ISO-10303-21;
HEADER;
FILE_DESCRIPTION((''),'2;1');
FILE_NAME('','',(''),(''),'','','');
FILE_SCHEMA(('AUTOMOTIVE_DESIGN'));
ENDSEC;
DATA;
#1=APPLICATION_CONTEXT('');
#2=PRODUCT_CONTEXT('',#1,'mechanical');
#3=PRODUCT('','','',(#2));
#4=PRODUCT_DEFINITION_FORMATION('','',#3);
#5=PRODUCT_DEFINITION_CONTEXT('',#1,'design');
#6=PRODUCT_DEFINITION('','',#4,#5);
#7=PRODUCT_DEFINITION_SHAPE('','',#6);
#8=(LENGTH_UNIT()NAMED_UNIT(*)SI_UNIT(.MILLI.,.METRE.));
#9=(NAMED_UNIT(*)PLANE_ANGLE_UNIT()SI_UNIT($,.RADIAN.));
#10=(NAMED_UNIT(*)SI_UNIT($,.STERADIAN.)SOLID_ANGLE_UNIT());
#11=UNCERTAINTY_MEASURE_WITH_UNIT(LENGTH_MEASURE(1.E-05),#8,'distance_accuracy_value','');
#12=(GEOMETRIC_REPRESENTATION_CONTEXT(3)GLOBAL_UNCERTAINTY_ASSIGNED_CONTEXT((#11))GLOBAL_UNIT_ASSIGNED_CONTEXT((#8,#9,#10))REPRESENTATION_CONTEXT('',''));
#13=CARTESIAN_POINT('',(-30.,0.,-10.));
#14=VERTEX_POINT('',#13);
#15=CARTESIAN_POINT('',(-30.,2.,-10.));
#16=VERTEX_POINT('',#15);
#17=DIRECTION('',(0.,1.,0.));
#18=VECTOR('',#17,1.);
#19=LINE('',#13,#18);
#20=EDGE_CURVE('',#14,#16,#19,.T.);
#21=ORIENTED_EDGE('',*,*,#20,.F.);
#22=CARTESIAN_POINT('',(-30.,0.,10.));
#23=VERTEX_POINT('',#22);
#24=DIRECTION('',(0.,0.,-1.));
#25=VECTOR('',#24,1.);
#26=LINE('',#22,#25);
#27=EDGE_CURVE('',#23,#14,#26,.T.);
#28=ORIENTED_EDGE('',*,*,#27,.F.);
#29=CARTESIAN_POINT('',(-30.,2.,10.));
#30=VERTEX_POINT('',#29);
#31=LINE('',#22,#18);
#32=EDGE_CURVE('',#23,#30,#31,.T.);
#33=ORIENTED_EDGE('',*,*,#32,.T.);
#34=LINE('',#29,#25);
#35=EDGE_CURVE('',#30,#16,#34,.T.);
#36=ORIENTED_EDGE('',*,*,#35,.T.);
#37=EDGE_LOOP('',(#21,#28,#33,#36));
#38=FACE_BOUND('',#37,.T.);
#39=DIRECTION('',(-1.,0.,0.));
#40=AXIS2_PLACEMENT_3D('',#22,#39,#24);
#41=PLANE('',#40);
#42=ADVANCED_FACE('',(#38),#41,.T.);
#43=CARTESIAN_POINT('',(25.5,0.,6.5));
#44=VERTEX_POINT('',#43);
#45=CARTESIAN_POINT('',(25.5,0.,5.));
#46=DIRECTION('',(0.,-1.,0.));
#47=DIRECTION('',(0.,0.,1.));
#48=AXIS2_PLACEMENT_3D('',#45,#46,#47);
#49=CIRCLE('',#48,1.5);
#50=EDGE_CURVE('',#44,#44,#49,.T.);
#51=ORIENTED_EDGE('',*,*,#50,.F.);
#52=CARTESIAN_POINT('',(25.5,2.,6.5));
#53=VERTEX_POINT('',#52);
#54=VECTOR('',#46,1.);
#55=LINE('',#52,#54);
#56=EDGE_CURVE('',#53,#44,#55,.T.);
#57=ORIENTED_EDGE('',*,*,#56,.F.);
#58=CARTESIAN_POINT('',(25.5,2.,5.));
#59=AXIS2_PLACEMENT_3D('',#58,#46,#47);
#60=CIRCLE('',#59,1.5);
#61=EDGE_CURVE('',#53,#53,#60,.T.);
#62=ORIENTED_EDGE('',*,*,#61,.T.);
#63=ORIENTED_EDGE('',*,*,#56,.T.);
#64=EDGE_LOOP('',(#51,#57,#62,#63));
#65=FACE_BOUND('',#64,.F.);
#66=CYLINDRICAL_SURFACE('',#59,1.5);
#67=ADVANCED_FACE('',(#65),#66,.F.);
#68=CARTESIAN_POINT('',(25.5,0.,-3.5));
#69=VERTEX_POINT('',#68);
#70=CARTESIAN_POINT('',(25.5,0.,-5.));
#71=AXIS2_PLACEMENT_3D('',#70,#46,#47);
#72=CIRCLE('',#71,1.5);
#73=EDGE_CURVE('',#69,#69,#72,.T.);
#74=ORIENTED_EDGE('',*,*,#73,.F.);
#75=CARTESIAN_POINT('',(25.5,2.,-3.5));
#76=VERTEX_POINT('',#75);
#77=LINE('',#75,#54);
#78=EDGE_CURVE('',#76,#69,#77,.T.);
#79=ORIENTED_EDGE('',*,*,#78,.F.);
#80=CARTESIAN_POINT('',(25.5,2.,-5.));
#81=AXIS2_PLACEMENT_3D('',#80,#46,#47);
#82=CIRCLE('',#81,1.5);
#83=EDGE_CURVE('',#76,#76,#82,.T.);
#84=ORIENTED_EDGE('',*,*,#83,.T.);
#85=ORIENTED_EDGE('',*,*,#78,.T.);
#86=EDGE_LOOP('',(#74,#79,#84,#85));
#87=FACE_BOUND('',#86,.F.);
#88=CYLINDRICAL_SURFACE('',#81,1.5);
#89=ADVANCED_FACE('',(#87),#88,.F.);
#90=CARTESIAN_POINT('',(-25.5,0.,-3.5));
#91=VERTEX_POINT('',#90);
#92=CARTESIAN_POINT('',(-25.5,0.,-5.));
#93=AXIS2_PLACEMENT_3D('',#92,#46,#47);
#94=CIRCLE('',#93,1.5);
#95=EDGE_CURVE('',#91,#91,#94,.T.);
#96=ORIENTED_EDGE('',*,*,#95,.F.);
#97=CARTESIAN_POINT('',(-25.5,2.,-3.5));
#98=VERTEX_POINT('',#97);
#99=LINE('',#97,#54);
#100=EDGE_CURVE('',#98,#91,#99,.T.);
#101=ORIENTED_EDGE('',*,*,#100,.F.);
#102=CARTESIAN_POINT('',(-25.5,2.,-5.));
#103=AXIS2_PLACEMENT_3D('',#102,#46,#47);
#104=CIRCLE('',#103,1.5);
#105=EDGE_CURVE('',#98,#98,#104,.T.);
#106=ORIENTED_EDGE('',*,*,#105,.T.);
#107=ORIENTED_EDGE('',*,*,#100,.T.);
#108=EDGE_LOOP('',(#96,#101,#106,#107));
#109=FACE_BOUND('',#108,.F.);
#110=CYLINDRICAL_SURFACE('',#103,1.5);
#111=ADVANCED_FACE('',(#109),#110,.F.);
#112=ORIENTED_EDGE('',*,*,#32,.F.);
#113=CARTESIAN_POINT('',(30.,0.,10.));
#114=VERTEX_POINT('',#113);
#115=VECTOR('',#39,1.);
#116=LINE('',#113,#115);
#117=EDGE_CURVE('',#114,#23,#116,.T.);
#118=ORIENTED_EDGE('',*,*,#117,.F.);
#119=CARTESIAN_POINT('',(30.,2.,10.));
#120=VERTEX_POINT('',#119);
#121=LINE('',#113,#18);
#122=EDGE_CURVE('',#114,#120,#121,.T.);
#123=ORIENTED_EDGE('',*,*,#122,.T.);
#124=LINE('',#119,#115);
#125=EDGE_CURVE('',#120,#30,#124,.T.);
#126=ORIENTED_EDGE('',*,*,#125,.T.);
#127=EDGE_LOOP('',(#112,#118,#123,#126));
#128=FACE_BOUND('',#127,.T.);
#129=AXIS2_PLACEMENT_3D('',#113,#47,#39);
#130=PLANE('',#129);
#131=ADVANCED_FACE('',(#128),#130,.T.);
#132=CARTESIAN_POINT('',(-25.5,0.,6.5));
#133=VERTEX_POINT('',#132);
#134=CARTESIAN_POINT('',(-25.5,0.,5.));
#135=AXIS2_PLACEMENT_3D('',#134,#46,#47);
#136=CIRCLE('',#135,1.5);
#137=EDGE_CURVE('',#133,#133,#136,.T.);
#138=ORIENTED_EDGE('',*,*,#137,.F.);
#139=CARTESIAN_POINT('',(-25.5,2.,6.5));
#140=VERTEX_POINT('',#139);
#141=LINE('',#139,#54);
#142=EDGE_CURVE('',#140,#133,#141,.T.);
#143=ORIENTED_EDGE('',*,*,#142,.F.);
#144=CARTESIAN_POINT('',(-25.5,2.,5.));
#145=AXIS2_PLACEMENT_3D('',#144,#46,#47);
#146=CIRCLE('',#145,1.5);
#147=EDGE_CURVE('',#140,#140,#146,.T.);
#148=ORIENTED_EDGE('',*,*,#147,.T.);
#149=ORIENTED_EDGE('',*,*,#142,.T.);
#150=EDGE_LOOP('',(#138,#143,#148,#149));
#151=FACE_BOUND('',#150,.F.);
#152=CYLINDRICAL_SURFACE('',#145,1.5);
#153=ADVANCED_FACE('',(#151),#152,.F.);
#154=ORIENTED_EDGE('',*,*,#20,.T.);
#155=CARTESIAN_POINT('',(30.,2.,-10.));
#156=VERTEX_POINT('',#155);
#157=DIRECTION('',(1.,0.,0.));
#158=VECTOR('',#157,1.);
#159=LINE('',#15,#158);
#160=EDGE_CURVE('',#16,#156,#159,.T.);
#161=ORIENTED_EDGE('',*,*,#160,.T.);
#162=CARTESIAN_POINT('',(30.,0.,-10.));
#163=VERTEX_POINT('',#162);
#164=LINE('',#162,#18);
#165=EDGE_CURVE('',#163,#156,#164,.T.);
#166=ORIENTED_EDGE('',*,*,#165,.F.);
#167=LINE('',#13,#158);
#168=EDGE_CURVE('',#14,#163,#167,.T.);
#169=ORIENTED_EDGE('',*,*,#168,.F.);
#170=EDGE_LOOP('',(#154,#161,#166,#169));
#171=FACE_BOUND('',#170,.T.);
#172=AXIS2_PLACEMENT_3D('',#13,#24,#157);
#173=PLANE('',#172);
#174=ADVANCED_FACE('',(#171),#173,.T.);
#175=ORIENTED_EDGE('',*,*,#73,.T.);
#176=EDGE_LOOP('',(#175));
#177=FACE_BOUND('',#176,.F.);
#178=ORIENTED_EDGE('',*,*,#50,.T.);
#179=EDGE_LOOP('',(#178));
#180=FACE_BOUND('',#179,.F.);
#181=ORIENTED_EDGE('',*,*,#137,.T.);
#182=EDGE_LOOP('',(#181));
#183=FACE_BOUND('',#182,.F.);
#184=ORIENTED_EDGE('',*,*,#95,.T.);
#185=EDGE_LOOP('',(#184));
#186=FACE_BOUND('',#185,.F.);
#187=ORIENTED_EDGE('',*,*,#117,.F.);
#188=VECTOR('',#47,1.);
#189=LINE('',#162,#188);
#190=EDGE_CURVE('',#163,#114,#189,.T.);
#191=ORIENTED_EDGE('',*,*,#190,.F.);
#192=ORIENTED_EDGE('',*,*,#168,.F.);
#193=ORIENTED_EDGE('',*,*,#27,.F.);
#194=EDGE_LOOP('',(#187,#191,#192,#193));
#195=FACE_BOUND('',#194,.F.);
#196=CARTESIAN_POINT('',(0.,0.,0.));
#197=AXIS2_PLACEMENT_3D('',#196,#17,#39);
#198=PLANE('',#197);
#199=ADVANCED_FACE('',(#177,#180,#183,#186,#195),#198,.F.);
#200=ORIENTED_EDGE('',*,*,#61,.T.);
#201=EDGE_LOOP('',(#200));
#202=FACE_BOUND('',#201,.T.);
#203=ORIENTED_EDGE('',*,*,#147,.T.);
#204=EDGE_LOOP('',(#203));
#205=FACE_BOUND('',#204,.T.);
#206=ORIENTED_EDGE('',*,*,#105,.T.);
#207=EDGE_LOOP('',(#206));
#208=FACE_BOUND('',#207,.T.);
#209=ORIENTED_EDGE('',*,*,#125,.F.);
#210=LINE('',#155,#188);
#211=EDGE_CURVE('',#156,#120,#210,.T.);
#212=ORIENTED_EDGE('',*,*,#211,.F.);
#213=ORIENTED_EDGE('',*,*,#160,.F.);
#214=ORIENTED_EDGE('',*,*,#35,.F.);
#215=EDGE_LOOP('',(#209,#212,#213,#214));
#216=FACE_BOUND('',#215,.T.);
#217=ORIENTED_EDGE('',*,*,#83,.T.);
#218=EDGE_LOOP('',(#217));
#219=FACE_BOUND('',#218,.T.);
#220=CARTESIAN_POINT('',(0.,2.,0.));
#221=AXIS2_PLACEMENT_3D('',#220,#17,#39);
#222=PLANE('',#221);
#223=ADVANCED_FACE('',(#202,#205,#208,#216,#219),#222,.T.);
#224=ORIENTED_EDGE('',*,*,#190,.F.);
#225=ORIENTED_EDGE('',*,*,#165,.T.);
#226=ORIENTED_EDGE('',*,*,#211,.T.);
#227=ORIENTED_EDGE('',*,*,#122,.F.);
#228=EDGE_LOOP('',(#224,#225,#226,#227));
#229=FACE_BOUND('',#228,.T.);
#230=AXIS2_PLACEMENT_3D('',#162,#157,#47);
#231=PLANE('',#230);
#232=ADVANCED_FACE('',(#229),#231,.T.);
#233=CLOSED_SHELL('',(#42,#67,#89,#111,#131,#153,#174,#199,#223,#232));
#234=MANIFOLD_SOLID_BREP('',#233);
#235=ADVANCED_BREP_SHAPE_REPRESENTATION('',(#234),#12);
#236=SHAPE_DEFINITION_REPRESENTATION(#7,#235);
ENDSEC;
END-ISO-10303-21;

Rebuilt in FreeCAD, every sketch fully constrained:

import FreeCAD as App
import Part
import Sketcher

V = App.Vector


def add_polygon(sketch, points):
    """Adds a closed chain of lines whose ends are joined by coincident constraints."""
    first, n = sketch.GeometryCount, len(points)
    for a, b in zip(points, points[1:] + points[:1]):
        sketch.addGeometry(Part.LineSegment(App.Vector(*a, 0), App.Vector(*b, 0)), False)
    for i in range(n):
        sketch.addConstraint(Sketcher.Constraint("Coincident", first + i, 2, first + (i + 1) % n, 1))

doc = App.newDocument("Part")
body = doc.addObject("PartDesign::Body", "Body")

# Sketch on XZ plane
sketch1 = body.newObject("Sketcher::SketchObject", "Sketch")
sketch1.AttachmentSupport = (doc.getObject("XZ_Plane"), [""])
sketch1.MapMode = "FlatFace"
add_polygon(sketch1, [(-30, 10), (30, 10), (30, -10), (-30, -10)])  # lines 0-3
sketch1.addConstraint([
    Sketcher.Constraint("Horizontal", 0),
    Sketcher.Constraint("Vertical", 1),
    Sketcher.Constraint("Horizontal", 2),
    Sketcher.Constraint("Vertical", 3),
    Sketcher.Constraint("Symmetric", 0, 2, 2, 2, -1, 1),
    Sketcher.Constraint("DistanceX", 0, 1, 0, 2, 60.0),
    Sketcher.Constraint("DistanceY", 1, 2, 1, 1, 20.0),
])
pad1 = body.newObject("PartDesign::Pad", "Pad")
pad1.Profile = sketch1
pad1.Length = 2
pad1.Reversed = True

# Sketch on XZ plane
sketch2 = body.newObject("Sketcher::SketchObject", "Sketch001")
sketch2.AttachmentSupport = (doc.getObject("XZ_Plane"), [""])
sketch2.MapMode = "FlatFace"
sketch2.AttachmentOffset = App.Placement(V(0, 0, -2), App.Rotation())
sketch2.addGeometry([
    Part.Circle(V(-25.5, -5, 0), V(0, 0, 1), 1.5),
    Part.Circle(V(-25.5, 5, 0), V(0, 0, 1), 1.5),
    Part.Circle(V(25.5, 5, 0), V(0, 0, 1), 1.5),
    Part.Circle(V(25.5, -5, 0), V(0, 0, 1), 1.5),
], False)
sketch2.addConstraint([
    Sketcher.Constraint("Equal", 0, 1),
    Sketcher.Constraint("Equal", 1, 2),
    Sketcher.Constraint("Equal", 2, 3),
    Sketcher.Constraint("Symmetric", 0, 3, 2, 3, -1, 1),
    Sketcher.Constraint("Symmetric", 1, 3, 3, 3, -1, 1),
    Sketcher.Constraint("Symmetric", 1, 3, 2, 3, -2),
    Sketcher.Constraint("Diameter", 0, 3.0),
    Sketcher.Constraint("DistanceY", 0, 3, -1, 1, 5.0),
    Sketcher.Constraint("DistanceX", 1, 3, 2, 3, 51.0),
])
doc.recompute()
hole = body.newObject("PartDesign::Hole", "Hole")
hole.Profile = sketch2
hole.ThreadType = "None"
hole.Diameter = 3
hole.DepthType = "ThroughAll"
hole.Reversed = True

doc.recompute()
